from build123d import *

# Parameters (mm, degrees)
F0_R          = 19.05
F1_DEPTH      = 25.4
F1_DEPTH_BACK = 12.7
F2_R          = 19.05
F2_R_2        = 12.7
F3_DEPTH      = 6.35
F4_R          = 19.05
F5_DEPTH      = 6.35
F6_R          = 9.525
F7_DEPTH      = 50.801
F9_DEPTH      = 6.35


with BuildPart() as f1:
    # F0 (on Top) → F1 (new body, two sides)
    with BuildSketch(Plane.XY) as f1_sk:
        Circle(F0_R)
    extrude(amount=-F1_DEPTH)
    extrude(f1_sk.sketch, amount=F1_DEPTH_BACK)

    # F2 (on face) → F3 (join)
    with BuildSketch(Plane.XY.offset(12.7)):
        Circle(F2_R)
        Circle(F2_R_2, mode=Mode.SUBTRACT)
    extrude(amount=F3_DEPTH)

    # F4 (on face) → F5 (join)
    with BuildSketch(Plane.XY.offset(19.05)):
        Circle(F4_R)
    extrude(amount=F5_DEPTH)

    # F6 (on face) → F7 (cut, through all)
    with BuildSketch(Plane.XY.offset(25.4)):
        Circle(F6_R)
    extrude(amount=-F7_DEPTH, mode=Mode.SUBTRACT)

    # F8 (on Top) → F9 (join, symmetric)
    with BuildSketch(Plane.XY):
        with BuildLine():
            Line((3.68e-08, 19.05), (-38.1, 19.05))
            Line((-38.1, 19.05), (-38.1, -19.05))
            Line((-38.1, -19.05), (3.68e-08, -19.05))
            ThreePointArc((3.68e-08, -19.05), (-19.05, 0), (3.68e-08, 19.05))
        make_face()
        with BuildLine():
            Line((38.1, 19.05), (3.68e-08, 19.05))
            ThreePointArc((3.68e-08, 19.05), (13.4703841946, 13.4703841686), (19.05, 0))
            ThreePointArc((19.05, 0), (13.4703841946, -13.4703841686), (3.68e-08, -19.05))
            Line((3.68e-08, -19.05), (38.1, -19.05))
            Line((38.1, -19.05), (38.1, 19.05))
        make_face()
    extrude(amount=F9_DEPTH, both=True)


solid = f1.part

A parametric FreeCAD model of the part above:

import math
import FreeCAD as App
import Part
import Sketcher

V = App.Vector
Q = App.Units.Quantity

doc = App.newDocument("Part")
body = doc.addObject("PartDesign::Body", "Body")

# Sketch on XY plane
sketch1 = doc.addObject("Sketcher::SketchObject", "Sketch")
body.addObject(sketch1)
sketch1.AttachmentSupport = (doc.XY_Plane, [""])
sketch1.MapMode = "FlatFace"
sketch1.addGeometry(Part.Circle(V(0, 0, 0), V(0, 0, 1), 19), False)
sketch1.addConstraint([
    Sketcher.Constraint("Coincident", 0, 3, -1, 1),
    Sketcher.Constraint("Diameter", 0, Q("1.5 in")),
])
pad1 = doc.addObject("PartDesign::Pad", "Pad")
body.addObject(pad1)
pad1.Profile = sketch1
pad1.Type = "TwoLengths"
pad1.Length = Q("1 in")
pad1.Length2 = Q("0.5 in")
pad1.Reversed = True

# Sketch on XY plane
sketch2 = doc.addObject("Sketcher::SketchObject", "Sketch001")
body.addObject(sketch2)
sketch2.AttachmentSupport = (doc.XY_Plane, [""])
sketch2.MapMode = "FlatFace"
sketch2.AttachmentOffset = App.Placement(V(0, 0, 0.5 * 25.4), App.Rotation())
sketch2.addGeometry([
    Part.Circle(V(0, 0, 0), V(0, 0, 1), 19),
    Part.Circle(V(0, 0, 0), V(0, 0, 1), 13),
], False)
sketch2.addConstraint([
    Sketcher.Constraint("Coincident", 0, 3, -1, 1),
    Sketcher.Constraint("Coincident", 1, 3, -1, 1),
    Sketcher.Constraint("Diameter", 1, Q("1 in")),
    Sketcher.Constraint("Diameter", 0, Q("1.5 in")),
])
pad2 = doc.addObject("PartDesign::Pad", "Pad001")
body.addObject(pad2)
pad2.Profile = sketch2
pad2.Length = Q("0.25 in")

# Sketch on XY plane
sketch3 = doc.addObject("Sketcher::SketchObject", "Sketch002")
body.addObject(sketch3)
sketch3.AttachmentSupport = (doc.XY_Plane, [""])
sketch3.MapMode = "FlatFace"
sketch3.AttachmentOffset = App.Placement(V(0, 0, 0.75 * 25.4), App.Rotation())
sketch3.addGeometry(Part.Circle(V(0, 0, 0), V(0, 0, 1), 19), False)
sketch3.addConstraint([
    Sketcher.Constraint("Coincident", 0, 3, -1, 1),
    Sketcher.Constraint("Diameter", 0, Q("1.5 in")),
])
pad3 = doc.addObject("PartDesign::Pad", "Pad002")
body.addObject(pad3)
pad3.Profile = sketch3
pad3.Length = Q("0.25 in")

# Sketch on XY plane
sketch4 = doc.addObject("Sketcher::SketchObject", "Sketch003")
body.addObject(sketch4)
sketch4.AttachmentSupport = (doc.XY_Plane, [""])
sketch4.MapMode = "FlatFace"
sketch4.AttachmentOffset = App.Placement(V(0, 0, 1 * 25.4), App.Rotation())
sketch4.addGeometry(Part.Circle(V(0, 0, 0), V(0, 0, 1), 10), False)
sketch4.addConstraint([
    Sketcher.Constraint("Coincident", 0, 3, -1, 1),
    Sketcher.Constraint("Diameter", 0, Q("0.75 in")),
])
pocket1 = doc.addObject("PartDesign::Pocket", "Pocket")
body.addObject(pocket1)
pocket1.Profile = sketch4
pocket1.Type = "ThroughAll"

# Sketch on XY plane
sketch5 = doc.addObject("Sketcher::SketchObject", "Sketch004")
body.addObject(sketch5)
sketch5.AttachmentSupport = (doc.XY_Plane, [""])
sketch5.MapMode = "FlatFace"
sketch5.addGeometry([
    Part.LineSegment(V(0, 19, 0), V(-38, 19, 0)),  # 0
    Part.LineSegment(V(-38, 19, 0), V(-38, -19, 0)),  # 1
    Part.LineSegment(V(-38, -19, 0), V(0, -19, 0)),  # 2
    Part.ArcOfCircle(Part.Circle(V(0, 0, 0), V(0, 0, 1), 19), math.radians(90), math.radians(270)),  # 3
    Part.LineSegment(V(38, 19, 0), V(0, 19, 0)),  # 4
    Part.ArcOfCircle(Part.Circle(V(0, 0, 0), V(0, 0, 1), 19), math.radians(0), math.radians(90)),  # 5
    Part.ArcOfCircle(Part.Circle(V(0, 0, 0), V(0, 0, 1), 19), math.radians(-90), math.radians(0)),  # 6
    Part.LineSegment(V(0, -19, 0), V(38, -19, 0)),  # 7
    Part.LineSegment(V(38, -19, 0), V(38, 19, 0)),  # 8
], False)
sketch5.addConstraint([
    Sketcher.Constraint("Coincident", 0, 2, 1, 1),
    Sketcher.Constraint("Coincident", 1, 2, 2, 1),
    Sketcher.Constraint("Tangent", 2, 2, 3, 2),
    Sketcher.Constraint("Tangent", 3, 1, 0, 1),
    Sketcher.Constraint("Tangent", 4, 2, 5, 2),
    Sketcher.Constraint("Tangent", 5, 1, 6, 2),
    Sketcher.Constraint("Tangent", 6, 1, 7, 1),
    Sketcher.Constraint("Coincident", 7, 2, 8, 1),
    Sketcher.Constraint("Coincident", 8, 2, 4, 1),
    Sketcher.Constraint("Horizontal", 0),
    Sketcher.Constraint("Vertical", 1),
    Sketcher.Constraint("Horizontal", 2),
    Sketcher.Constraint("Horizontal", 4),
    Sketcher.Constraint("Horizontal", 7),
    Sketcher.Constraint("Vertical", 8),
    Sketcher.Constraint("Coincident", 3, 3, -1, 1),
    Sketcher.Constraint("Coincident", 5, 3, -1, 1),
    Sketcher.Constraint("Coincident", 6, 1, 2, 2),
    Sketcher.Constraint("PointOnObject", 5, 1, -1),
    Sketcher.Constraint("Equal", 2, 4),
    Sketcher.Constraint("Equal", 7, 1),
    Sketcher.Constraint("Radius", 3, Q("0.75 in")),
])
pad4 = doc.addObject("PartDesign::Pad", "Pad003")
body.addObject(pad4)
pad4.Profile = sketch5
pad4.Length = Q("0.5 in")
pad4.Midplane = True

doc.recompute()
